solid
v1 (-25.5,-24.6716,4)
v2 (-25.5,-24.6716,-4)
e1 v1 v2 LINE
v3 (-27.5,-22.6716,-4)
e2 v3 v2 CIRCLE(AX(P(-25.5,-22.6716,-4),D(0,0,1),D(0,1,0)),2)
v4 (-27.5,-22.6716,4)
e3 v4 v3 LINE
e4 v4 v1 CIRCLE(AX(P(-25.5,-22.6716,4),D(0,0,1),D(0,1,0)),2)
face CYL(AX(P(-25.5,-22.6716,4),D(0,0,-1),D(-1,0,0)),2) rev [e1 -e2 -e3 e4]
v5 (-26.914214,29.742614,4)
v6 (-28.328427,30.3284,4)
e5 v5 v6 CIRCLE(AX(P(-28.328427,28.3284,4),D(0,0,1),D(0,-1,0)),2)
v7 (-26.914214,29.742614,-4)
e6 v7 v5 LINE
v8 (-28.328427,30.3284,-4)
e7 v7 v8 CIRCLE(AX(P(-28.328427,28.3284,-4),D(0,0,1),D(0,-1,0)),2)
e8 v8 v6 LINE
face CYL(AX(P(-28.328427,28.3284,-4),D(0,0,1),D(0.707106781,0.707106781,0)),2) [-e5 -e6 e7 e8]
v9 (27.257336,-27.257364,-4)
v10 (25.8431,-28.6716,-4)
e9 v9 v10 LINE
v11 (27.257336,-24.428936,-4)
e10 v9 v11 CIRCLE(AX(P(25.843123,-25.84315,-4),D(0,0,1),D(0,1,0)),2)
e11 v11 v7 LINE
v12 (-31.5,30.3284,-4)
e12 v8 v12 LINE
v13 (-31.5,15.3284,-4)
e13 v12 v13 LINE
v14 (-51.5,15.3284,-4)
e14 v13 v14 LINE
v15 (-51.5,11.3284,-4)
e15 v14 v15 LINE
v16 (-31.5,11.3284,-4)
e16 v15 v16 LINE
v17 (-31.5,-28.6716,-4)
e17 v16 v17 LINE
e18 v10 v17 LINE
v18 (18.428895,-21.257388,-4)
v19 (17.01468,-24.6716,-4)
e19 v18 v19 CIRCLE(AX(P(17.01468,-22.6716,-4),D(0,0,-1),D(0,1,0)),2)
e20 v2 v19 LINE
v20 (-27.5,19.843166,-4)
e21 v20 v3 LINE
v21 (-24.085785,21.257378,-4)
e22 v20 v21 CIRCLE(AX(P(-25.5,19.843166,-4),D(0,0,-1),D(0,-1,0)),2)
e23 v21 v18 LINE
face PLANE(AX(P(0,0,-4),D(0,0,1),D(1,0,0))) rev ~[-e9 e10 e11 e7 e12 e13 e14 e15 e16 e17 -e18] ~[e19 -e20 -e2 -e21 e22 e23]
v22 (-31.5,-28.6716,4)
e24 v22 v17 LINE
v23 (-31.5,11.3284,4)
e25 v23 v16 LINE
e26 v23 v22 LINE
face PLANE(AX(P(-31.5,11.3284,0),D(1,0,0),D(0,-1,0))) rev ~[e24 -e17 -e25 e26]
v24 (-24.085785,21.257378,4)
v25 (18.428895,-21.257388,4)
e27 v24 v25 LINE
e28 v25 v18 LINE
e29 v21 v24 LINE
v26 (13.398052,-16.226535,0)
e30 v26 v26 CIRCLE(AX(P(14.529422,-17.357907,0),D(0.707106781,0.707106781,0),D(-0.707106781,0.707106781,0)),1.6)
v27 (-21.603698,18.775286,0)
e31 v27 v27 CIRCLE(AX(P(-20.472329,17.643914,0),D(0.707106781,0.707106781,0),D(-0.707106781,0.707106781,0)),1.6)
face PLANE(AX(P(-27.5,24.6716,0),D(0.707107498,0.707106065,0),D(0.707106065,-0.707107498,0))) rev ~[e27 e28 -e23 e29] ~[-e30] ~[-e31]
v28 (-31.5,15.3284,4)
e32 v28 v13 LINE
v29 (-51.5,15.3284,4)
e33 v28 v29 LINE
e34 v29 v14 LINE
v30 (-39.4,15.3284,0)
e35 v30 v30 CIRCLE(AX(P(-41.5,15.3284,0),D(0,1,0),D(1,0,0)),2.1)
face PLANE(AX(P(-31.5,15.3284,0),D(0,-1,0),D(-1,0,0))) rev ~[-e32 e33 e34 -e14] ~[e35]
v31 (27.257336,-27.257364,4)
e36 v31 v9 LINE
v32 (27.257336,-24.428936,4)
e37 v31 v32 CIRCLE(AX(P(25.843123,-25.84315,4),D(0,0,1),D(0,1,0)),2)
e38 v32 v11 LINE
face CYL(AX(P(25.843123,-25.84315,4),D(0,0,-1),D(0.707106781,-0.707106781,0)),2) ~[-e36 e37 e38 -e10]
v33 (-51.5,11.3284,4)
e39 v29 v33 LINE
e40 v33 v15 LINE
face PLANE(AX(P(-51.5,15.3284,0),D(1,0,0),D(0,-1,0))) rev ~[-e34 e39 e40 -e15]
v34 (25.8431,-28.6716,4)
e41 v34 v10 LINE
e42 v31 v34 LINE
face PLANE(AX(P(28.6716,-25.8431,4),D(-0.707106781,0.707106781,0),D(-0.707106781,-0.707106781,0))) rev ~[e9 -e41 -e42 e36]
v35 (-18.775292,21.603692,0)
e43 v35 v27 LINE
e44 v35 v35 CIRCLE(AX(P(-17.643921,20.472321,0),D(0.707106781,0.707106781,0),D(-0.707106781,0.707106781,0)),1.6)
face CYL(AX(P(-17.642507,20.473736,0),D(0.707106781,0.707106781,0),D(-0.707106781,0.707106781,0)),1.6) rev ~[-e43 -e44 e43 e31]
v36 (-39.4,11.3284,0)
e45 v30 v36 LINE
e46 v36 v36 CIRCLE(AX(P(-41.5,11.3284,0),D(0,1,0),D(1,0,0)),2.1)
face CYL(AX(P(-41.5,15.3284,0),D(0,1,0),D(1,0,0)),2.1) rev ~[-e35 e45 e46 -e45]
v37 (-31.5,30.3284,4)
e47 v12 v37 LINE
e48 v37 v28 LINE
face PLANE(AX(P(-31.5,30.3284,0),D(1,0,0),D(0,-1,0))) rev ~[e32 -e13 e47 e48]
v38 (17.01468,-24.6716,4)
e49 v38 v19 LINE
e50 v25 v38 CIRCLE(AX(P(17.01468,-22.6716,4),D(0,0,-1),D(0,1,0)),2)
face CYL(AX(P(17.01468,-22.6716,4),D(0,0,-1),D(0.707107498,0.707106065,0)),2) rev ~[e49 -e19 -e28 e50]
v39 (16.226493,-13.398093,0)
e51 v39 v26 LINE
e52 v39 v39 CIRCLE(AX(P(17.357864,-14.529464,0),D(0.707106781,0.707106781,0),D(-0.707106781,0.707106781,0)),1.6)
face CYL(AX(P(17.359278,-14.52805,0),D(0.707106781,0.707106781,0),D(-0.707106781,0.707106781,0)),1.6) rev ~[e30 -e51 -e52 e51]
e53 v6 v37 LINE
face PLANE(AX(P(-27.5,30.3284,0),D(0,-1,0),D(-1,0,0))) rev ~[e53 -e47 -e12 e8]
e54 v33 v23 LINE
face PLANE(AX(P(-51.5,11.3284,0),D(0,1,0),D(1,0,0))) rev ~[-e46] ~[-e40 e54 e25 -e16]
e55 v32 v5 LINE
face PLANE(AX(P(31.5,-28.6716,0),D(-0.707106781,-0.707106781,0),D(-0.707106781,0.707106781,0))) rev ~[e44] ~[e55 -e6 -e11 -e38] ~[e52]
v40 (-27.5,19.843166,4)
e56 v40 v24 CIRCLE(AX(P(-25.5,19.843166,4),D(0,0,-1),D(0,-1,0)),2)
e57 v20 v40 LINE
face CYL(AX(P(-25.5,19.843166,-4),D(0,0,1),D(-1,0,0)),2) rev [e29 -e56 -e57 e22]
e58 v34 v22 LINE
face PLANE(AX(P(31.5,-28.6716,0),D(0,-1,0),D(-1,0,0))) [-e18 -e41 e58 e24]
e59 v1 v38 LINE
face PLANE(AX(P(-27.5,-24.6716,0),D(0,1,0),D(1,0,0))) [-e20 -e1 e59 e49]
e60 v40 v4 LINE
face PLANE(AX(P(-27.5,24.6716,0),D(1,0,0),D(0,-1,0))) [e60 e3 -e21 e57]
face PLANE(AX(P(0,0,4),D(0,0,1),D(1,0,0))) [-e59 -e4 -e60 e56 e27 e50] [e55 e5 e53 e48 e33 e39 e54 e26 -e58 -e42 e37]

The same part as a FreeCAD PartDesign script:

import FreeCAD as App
import Part
import Sketcher

V = App.Vector
Q = App.Units.Quantity


def edges_at(feature, points):
    """Names of the edges that pass closest to the given points."""
    edges = feature.Shape.Edges
    near = lambda p: min(range(len(edges)), key=lambda i: edges[i].distToShape(Part.Vertex(*p))[0])
    return sorted({f"Edge{near(p) + 1}" for p in points})


def add_polygon(sketch, points):
    """Adds a closed chain of lines whose ends are joined by coincident constraints."""
    first, n = sketch.GeometryCount, len(points)
    for a, b in zip(points, points[1:] + points[:1]):
        sketch.addGeometry(Part.LineSegment(App.Vector(*a, 0), App.Vector(*b, 0)), False)
    for i in range(n):
        sketch.addConstraint(Sketcher.Constraint("Coincident", first + i, 2, first + (i + 1) % n, 1))

doc = App.newDocument("Part")
body = doc.addObject("PartDesign::Body", "Body")

# Sketch on XY plane
sketch1 = body.newObject("Sketcher::SketchObject", "Sketch")
sketch1.AttachmentSupport = (doc.getObject("XY_Plane"), [""])
sketch1.MapMode = "FlatFace"
add_polygon(sketch1, [(-31.5, -28.7), (31.5, -28.7), (-27.5, 30.3), (-31.5, 30.3), (-31.5, 15.3), (-51.5, 15.3), (-51.5, 11.3), (-31.5, 11.3)])  # lines 0-7
add_polygon(sketch1, [(-27.5, -24.7), (-27.5, 24.7), (21.8, -24.7)])  # lines 8-10
sketch1.addConstraint(Sketcher.Constraint("Horizontal", 0))
sketch1.addConstraint(Sketcher.Constraint("Horizontal", 2))
sketch1.addConstraint(Sketcher.Constraint("Vertical", 3))
sketch1.addConstraint(Sketcher.Constraint("Horizontal", 4))
sketch1.addConstraint(Sketcher.Constraint("Vertical", 5))
sketch1.addConstraint(Sketcher.Constraint("Horizontal", 6))
sketch1.addConstraint(Sketcher.Constraint("Vertical", 7))
sketch1.addConstraint(Sketcher.Constraint("Vertical", 8))
sketch1.addConstraint(Sketcher.Constraint("Horizontal", 10))
sketch1.addConstraint(Sketcher.Constraint("Parallel", 1, 9))
sketch1.addConstraint(Sketcher.Constraint("Vertical", 3, 2, 6, 2))
sketch1.addConstraint(Sketcher.Constraint("Vertical", 1, 2, 8, 2))
sketch1.addConstraint(Sketcher.Constraint("Equal", 2, 5))
sketch1.addConstraint(Sketcher.Constraint("Equal", 10, 8))
sketch1.addConstraint(Sketcher.Constraint("DistanceX", 2, 2, 2, 1, Q("4 mm")))
sketch1.addConstraint(Sketcher.Constraint("DistanceX", 4, 2, 4, 1, Q("20 mm")))
sketch1.addConstraint(Sketcher.Constraint("DistanceY", 7, 2, 7, 1, Q("40 mm")))
sketch1.addConstraint(Sketcher.Constraint("DistanceY", 0, 2, 9, 2, Q("4 mm")))
sketch1.addConstraint(Sketcher.Constraint("DistanceX", 0, 1, 0, 2, Q("63 mm")))
sketch1.addConstraint(Sketcher.Constraint("DistanceX", -1, 1, 0, 2, Q("31.5 mm")))
sketch1.addConstraint(Sketcher.Constraint("DistanceX", 10, 2, 10, 1, Q("49.343 mm")))
sketch1.addConstraint(Sketcher.Constraint("DistanceY", 0, 2, -1, 1, Q("28.6716 mm")))
pad1 = body.newObject("PartDesign::Pad", "Pad")
pad1.Profile = sketch1
pad1.Length = 8
pad1.Midplane = True

# Sketch on XZ plane
sketch2 = body.newObject("Sketcher::SketchObject", "Sketch001")
sketch2.AttachmentSupport = (doc.getObject("XZ_Plane"), [""])
sketch2.MapMode = "FlatFace"
sketch2.AttachmentOffset = App.Placement(V(0, 0, -15.3284), App.Rotation())
sketch2.addGeometry(Part.Circle(V(-41.5, 0, 0), V(0, 0, 1), 2.1), False)
sketch2.addConstraint(Sketcher.Constraint("PointOnObject", 0, 3, -1))
sketch2.addConstraint(Sketcher.Constraint("Diameter", 0, Q("4.2 mm")))
sketch2.addConstraint(Sketcher.Constraint("DistanceX", 0, 3, -1, 1, Q("41.5 mm")))
pocket1 = body.newObject("PartDesign::Pocket", "Pocket")
pocket1.Profile = sketch2
pocket1.Type = "ThroughAll"
pocket1.Reversed = True

# Sketch on an angled plane
sketch3 = body.newObject("Sketcher::SketchObject", "Sketch002")
sketch3.Placement = App.Placement(V(-27.5, 30.3284, -4), App.Rotation(V(-0.707106781, 0.707106781, 0), V(0, 0, 0.999999999), V(0.707106781, 0.707106781, 0), "ZXY"))
sketch3.addGeometry(Part.Circle(V(-13.9, 4, 0), V(0, 0, 1), 1.6), False)
sketch3.addGeometry(Part.Circle(V(-63.4, 4, 0), V(0, 0, 1), 1.6), False)
sketch3.addConstraint(Sketcher.Constraint("Equal", 0, 1))
sketch3.addConstraint(Sketcher.Constraint("Horizontal", 0, 3, 1, 3))
sketch3.addConstraint(Sketcher.Constraint("Diameter", 0, Q("3.2 mm")))
sketch3.addConstraint(Sketcher.Constraint("DistanceX", 1, 3, 0, 3, Q("49.5 mm")))
sketch3.addConstraint(Sketcher.Constraint("DistanceY", -1, 1, 0, 3, Q("4 mm")))
sketch3.addConstraint(Sketcher.Constraint("DistanceX", 0, 3, -1, 1, Q("13.9386 mm")))
pocket2 = body.newObject("PartDesign::Pocket", "Pocket001")
pocket2.Profile = sketch3
pocket2.Length = 6

# Sketch on XY plane
sketch4 = body.newObject("Sketcher::SketchObject", "Sketch003")
sketch4.AttachmentSupport = (doc.getObject("XY_Plane"), [""])
sketch4.MapMode = "FlatFace"
sketch4.AttachmentOffset = App.Placement(V(0, 0, 4), App.Rotation())
add_polygon(sketch4, [(25.8, -28.7), (31.5, -28.7), (28.7, -25.8)])  # lines 0-2
sketch4.addConstraint(Sketcher.Constraint("Horizontal", 0))
sketch4.addConstraint(Sketcher.Constraint("Perpendicular", 1, 2))
sketch4.addConstraint(Sketcher.Constraint("Equal", 1, 2))
sketch4.addConstraint(Sketcher.Constraint("Distance", 1, Q("4 mm")))
sketch4.addConstraint(Sketcher.Constraint("DistanceX", -1, 1, 0, 2, Q("31.5 mm")))
sketch4.addConstraint(Sketcher.Constraint("DistanceY", 0, 2, -1, 1, Q("28.6716 mm")))
pocket3 = body.newObject("PartDesign::Pocket", "Pocket002")
pocket3.Profile = sketch4
pocket3.Type = "ThroughAll"
doc.recompute()

fillet = body.newObject("PartDesign::Fillet", "Fillet")
fillet.Base = (pocket3, edges_at(pocket3, [
    (-27.5, -24.672, 0),
    (-27.5, 30.328, 0),
    (28.672, -25.843, 0),
    (21.843, -24.672, 0),
    (-27.5, 24.672, 0),
]))
fillet.Radius = 2

doc.recompute()
